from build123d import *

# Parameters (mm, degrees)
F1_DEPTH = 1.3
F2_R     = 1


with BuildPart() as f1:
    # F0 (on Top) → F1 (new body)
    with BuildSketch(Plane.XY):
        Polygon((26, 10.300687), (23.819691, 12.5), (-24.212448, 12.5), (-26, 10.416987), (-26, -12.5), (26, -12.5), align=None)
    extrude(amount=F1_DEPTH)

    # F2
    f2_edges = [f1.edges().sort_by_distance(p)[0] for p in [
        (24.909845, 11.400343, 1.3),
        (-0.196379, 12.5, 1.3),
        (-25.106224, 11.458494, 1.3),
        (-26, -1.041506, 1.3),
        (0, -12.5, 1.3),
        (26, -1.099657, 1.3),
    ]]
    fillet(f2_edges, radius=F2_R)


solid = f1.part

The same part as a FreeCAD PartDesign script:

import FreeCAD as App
import Part
import Sketcher

V = App.Vector
Q = App.Units.Quantity


def edges_at(feature, points):
    """Names of the edges that pass closest to the given points."""
    edges = feature.Shape.Edges
    near = lambda p: min(range(len(edges)), key=lambda i: edges[i].distToShape(Part.Vertex(*p))[0])
    return sorted({f"Edge{near(p) + 1}" for p in points})


def add_polygon(sketch, points):
    """Adds a closed chain of lines whose ends are joined by coincident constraints."""
    first, n = sketch.GeometryCount, len(points)
    for a, b in zip(points, points[1:] + points[:1]):
        sketch.addGeometry(Part.LineSegment(App.Vector(*a, 0), App.Vector(*b, 0)), False)
    for i in range(n):
        sketch.addConstraint(Sketcher.Constraint("Coincident", first + i, 2, first + (i + 1) % n, 1))

doc = App.newDocument("Part")
body = doc.addObject("PartDesign::Body", "Body")

# Sketch on XY plane
sketch1 = doc.addObject("Sketcher::SketchObject", "Sketch")
body.addObject(sketch1)
sketch1.AttachmentSupport = (doc.XY_Plane, [""])
sketch1.MapMode = "FlatFace"
add_polygon(sketch1, [(26, 10.3), (23.8, 12.5), (-24.2, 12.5), (-26, 10.4), (-26, -12.5), (26, -12.5)])  # lines 0-5
sketch1.addConstraint([
    Sketcher.Constraint("Horizontal", 1),
    Sketcher.Constraint("Vertical", 3),
    Sketcher.Constraint("Horizontal", 4),
    Sketcher.Constraint("Vertical", 5),
    Sketcher.Constraint("DistanceX", 4, 1, 4, 2, Q("52 mm")),
    Sketcher.Constraint("DistanceX", 2, 2, -1, 1, Q("26 mm")),
    Sketcher.Constraint("DistanceY", 3, 2, 1, 2, Q("25 mm")),
    Sketcher.Constraint("DistanceY", -1, 1, 0, 2, Q("12.5 mm")),
    Sketcher.Constraint("DistanceX", 1, 2, 1, 1, Q("48.032139 mm")),
    Sketcher.Constraint("DistanceY", 5, 2, 2, 2, Q("0.1163 mm")),
    Sketcher.Constraint("Distance", 0, Q("3.09689 mm")),
    Sketcher.Constraint("DistanceY", 3, 2, 3, 1, Q("22.916987 mm")),
])
pad1 = doc.addObject("PartDesign::Pad", "Pad")
body.addObject(pad1)
pad1.Profile = sketch1
pad1.Length = 1.3
doc.recompute()

fillet = doc.addObject("PartDesign::Fillet", "Fillet")
body.addObject(fillet)
fillet.Base = (pad1, edges_at(pad1, [
    (24.91, 11.4, 1.3),
    (-0.196, 12.5, 1.3),
    (-25.106, 11.458, 1.3),
    (-26, -1.042, 1.3),
    (0, -12.5, 1.3),
    (26, -1.1, 1.3),
]))
fillet.Radius = 1

doc.recompute()
